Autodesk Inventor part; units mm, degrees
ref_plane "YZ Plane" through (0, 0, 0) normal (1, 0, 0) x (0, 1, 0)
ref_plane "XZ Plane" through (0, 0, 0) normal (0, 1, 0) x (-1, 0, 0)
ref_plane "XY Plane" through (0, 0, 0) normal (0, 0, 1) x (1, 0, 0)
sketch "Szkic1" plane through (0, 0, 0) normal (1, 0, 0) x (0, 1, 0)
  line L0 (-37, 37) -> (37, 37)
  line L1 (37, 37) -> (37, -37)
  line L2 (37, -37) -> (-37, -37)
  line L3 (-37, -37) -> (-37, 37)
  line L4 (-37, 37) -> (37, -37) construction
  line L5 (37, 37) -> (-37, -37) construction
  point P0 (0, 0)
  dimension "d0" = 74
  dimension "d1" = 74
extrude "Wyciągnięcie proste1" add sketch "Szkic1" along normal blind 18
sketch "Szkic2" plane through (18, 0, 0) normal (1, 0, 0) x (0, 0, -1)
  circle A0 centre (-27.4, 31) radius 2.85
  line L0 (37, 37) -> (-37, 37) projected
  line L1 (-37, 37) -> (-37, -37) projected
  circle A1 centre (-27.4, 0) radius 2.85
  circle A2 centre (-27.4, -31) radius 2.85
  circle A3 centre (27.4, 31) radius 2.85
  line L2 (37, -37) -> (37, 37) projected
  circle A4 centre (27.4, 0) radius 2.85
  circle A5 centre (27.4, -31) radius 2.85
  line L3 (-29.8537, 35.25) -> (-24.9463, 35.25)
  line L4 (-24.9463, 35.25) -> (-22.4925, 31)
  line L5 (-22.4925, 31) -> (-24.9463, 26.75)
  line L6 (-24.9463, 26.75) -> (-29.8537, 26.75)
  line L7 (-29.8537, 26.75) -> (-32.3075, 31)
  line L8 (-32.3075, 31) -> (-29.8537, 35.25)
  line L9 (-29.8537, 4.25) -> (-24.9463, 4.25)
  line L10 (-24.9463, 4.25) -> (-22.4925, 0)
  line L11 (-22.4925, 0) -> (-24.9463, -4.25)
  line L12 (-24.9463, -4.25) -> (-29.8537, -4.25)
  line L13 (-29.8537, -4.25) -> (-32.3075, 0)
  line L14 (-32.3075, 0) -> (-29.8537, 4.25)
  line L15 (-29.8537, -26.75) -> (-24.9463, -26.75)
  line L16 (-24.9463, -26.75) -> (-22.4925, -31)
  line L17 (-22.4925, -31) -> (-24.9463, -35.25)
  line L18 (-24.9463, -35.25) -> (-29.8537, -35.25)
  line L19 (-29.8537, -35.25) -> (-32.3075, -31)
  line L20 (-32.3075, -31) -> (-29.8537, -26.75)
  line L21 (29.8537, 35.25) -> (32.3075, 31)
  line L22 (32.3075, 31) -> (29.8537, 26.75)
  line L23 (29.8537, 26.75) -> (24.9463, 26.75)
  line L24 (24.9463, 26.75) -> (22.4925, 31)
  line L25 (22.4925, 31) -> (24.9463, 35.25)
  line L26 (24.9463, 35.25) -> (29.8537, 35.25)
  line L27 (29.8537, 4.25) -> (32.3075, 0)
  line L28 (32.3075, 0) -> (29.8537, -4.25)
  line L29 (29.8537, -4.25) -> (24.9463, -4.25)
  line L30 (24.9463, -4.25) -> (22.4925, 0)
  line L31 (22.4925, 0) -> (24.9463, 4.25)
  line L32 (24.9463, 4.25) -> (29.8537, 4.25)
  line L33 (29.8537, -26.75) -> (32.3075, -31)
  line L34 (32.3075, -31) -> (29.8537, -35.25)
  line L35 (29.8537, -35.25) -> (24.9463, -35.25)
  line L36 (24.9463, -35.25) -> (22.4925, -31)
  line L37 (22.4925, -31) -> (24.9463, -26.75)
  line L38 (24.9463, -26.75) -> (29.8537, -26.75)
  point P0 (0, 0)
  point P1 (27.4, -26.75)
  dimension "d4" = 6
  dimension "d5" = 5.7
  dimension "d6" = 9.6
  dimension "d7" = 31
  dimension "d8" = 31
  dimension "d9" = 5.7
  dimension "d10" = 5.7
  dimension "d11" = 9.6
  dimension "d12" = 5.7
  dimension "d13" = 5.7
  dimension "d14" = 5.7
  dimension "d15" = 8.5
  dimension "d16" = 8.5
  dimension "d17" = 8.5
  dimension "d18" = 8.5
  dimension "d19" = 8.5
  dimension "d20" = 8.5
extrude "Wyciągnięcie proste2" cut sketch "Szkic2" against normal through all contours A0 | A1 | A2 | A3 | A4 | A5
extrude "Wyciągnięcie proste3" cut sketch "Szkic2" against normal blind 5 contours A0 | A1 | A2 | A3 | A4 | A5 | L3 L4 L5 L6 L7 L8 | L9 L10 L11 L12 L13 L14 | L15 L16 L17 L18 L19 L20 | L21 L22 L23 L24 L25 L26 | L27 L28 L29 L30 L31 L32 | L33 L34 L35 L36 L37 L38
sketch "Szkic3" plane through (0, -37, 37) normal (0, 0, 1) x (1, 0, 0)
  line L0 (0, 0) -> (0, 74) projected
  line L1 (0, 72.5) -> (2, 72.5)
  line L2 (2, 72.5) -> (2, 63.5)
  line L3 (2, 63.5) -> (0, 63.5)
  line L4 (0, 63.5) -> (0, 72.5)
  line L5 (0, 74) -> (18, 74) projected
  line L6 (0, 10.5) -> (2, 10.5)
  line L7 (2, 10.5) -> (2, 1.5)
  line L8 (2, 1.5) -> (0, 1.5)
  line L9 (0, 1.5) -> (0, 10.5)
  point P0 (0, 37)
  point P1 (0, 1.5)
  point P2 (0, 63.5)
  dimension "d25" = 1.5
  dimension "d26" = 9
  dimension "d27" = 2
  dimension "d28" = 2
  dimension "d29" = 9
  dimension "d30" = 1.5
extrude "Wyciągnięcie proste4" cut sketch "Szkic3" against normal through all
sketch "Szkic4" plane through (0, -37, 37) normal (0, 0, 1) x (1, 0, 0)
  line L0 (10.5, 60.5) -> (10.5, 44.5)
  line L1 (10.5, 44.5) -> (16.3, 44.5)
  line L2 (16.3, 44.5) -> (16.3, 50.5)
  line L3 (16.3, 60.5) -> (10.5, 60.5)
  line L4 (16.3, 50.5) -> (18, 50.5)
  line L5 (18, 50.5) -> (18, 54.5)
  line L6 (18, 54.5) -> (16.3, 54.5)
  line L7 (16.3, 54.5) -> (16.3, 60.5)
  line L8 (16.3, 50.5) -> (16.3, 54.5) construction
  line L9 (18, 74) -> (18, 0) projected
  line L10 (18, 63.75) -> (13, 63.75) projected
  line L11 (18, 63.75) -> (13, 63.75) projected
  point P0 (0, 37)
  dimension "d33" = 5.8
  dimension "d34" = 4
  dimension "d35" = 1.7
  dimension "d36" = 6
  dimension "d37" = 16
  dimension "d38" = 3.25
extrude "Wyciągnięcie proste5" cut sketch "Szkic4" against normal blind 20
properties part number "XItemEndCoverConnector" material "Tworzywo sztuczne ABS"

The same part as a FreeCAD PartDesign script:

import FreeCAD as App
import Part
import Sketcher

V = App.Vector
Q = App.Units.Quantity

doc = App.newDocument("Part")
body = doc.addObject("PartDesign::Body", "Body")

# Sketch on YZ plane
sketch1 = body.newObject("Sketcher::SketchObject", "Sketch")
sketch1.AttachmentSupport = (doc.getObject("YZ_Plane"), [""])
sketch1.MapMode = "FlatFace"
sketch1.addGeometry(Part.LineSegment(V(37, 37, 0), V(-37, 37, 0)), False)
sketch1.addGeometry(Part.LineSegment(V(-37, 37, 0), V(-37, -37, 0)), False)
sketch1.addGeometry(Part.LineSegment(V(-37, -37, 0), V(37, -37, 0)), False)
sketch1.addGeometry(Part.LineSegment(V(37, -37, 0), V(37, 37, 0)), False)
sketch1.addConstraint(Sketcher.Constraint("Coincident", 0, 2, 1, 1))
sketch1.addConstraint(Sketcher.Constraint("Coincident", 1, 2, 2, 1))
sketch1.addConstraint(Sketcher.Constraint("Coincident", 2, 2, 3, 1))
sketch1.addConstraint(Sketcher.Constraint("Coincident", 3, 2, 0, 1))
sketch1.addConstraint(Sketcher.Constraint("Horizontal", 0))
sketch1.addConstraint(Sketcher.Constraint("Vertical", 1))
sketch1.addConstraint(Sketcher.Constraint("Horizontal", 2))
sketch1.addConstraint(Sketcher.Constraint("Vertical", 3))
sketch1.addConstraint(Sketcher.Constraint("Symmetric", 0, 2, 2, 2, -1, 1))
sketch1.addConstraint(Sketcher.Constraint("Equal", 2, 1))
sketch1.addConstraint(Sketcher.Constraint("DistanceX", 0, 2, 0, 1, 74.0))
pad1 = body.newObject("PartDesign::Pad", "Pad")
pad1.Profile = sketch1
pad1.Length = 18

# Sketch on YZ plane
sketch2 = body.newObject("Sketcher::SketchObject", "Sketch001")
sketch2.AttachmentSupport = (doc.getObject("YZ_Plane"), [""])
sketch2.MapMode = "FlatFace"
sketch2.AttachmentOffset = App.Placement(V(0, 0, 18), App.Rotation())
sketch2.addGeometry(Part.Circle(V(31, 27.4, 0), V(0, 0, 1), 2.9), False)
sketch2.addGeometry(Part.Circle(V(0, 27.4, 0), V(0, 0, 1), 2.9), False)
sketch2.addGeometry(Part.Circle(V(-31, 27.4, 0), V(0, 0, 1), 2.9), False)
sketch2.addGeometry(Part.Circle(V(31, -27.4, 0), V(0, 0, 1), 2.9), False)
sketch2.addGeometry(Part.Circle(V(0, -27.4, 0), V(0, 0, 1), 2.9), False)
sketch2.addGeometry(Part.Circle(V(-31, -27.4, 0), V(0, 0, 1), 2.9), False)
sketch2.addConstraint(Sketcher.Constraint("Equal", 0, 1))
sketch2.addConstraint(Sketcher.Constraint("Equal", 1, 2))
sketch2.addConstraint(Sketcher.Constraint("Equal", 2, 3))
sketch2.addConstraint(Sketcher.Constraint("Equal", 3, 4))
sketch2.addConstraint(Sketcher.Constraint("Equal", 4, 5))
sketch2.addConstraint(Sketcher.Constraint("Symmetric", 2, 3, 3, 3, -1, 1))
sketch2.addConstraint(Sketcher.Constraint("Symmetric", 1, 3, 4, 3, -1, 1))
sketch2.addConstraint(Sketcher.Constraint("Symmetric", 0, 3, 5, 3, -1, 1))
sketch2.addConstraint(Sketcher.Constraint("Symmetric", 0, 3, 2, 3, -2))
sketch2.addConstraint(Sketcher.Constraint("PointOnObject", 1, 3, -2))
sketch2.addConstraint(Sketcher.Constraint("Horizontal", 0, 3, 1, 3))
sketch2.addConstraint(Sketcher.Constraint("Diameter", 0, 5.7))
sketch2.addConstraint(Sketcher.Constraint("DistanceX", -1, 1, 0, 3, 31.0))
sketch2.addConstraint(Sketcher.Constraint("DistanceY", -1, 1, 0, 3, 27.4))
pocket1 = body.newObject("PartDesign::Pocket", "Pocket")
pocket1.Profile = sketch2
pocket1.Type = "ThroughAll"

# Sketch on YZ plane
sketch3 = body.newObject("Sketcher::SketchObject", "Sketch002")
sketch3.AttachmentSupport = (doc.getObject("YZ_Plane"), [""])
sketch3.MapMode = "FlatFace"
sketch3.AttachmentOffset = App.Placement(V(0, 0, 18), App.Rotation())
sketch3.addGeometry(Part.LineSegment(V(35.2, 24.9, 0), V(35.2, 29.9, 0)), False)
sketch3.addGeometry(Part.LineSegment(V(35.2, 29.9, 0), V(31, 32.3, 0)), False)
sketch3.addGeometry(Part.LineSegment(V(31, 32.3, 0), V(26.8, 29.9, 0)), False)
sketch3.addGeometry(Part.LineSegment(V(26.8, 29.9, 0), V(26.8, 24.9, 0)), False)
sketch3.addGeometry(Part.LineSegment(V(26.8, 24.9, 0), V(31, 22.5, 0)), False)
sketch3.addGeometry(Part.LineSegment(V(31, 22.5, 0), V(35.2, 24.9, 0)), False)
sketch3.addGeometry(Part.LineSegment(V(4.2, 24.9, 0), V(4.2, 29.9, 0)), False)
sketch3.addGeometry(Part.LineSegment(V(4.2, 29.9, 0), V(0, 32.3, 0)), False)
sketch3.addGeometry(Part.LineSegment(V(0, 32.3, 0), V(-4.2, 29.9, 0)), False)
sketch3.addGeometry(Part.LineSegment(V(-4.2, 29.9, 0), V(-4.2, 24.9, 0)), False)
sketch3.addGeometry(Part.LineSegment(V(-4.2, 24.9, 0), V(0, 22.5, 0)), False)
sketch3.addGeometry(Part.LineSegment(V(0, 22.5, 0), V(4.2, 24.9, 0)), False)
sketch3.addGeometry(Part.LineSegment(V(-26.8, 24.9, 0), V(-26.8, 29.9, 0)), False)
sketch3.addGeometry(Part.LineSegment(V(-26.8, 29.9, 0), V(-31, 32.3, 0)), False)
sketch3.addGeometry(Part.LineSegment(V(-31, 32.3, 0), V(-35.2, 29.9, 0)), False)
sketch3.addGeometry(Part.LineSegment(V(-35.2, 29.9, 0), V(-35.2, 24.9, 0)), False)
sketch3.addGeometry(Part.LineSegment(V(-35.2, 24.9, 0), V(-31, 22.5, 0)), False)
sketch3.addGeometry(Part.LineSegment(V(-31, 22.5, 0), V(-26.8, 24.9, 0)), False)
sketch3.addGeometry(Part.LineSegment(V(31, -32.3, 0), V(35.2, -29.9, 0)), False)
sketch3.addGeometry(Part.LineSegment(V(35.2, -29.9, 0), V(35.2, -24.9, 0)), False)
sketch3.addGeometry(Part.LineSegment(V(35.2, -24.9, 0), V(31, -22.5, 0)), False)
sketch3.addGeometry(Part.LineSegment(V(31, -22.5, 0), V(26.8, -24.9, 0)), False)
sketch3.addGeometry(Part.LineSegment(V(26.8, -24.9, 0), V(26.8, -29.9, 0)), False)
sketch3.addGeometry(Part.LineSegment(V(26.8, -29.9, 0), V(31, -32.3, 0)), False)
sketch3.addGeometry(Part.LineSegment(V(0, -32.3, 0), V(4.2, -29.9, 0)), False)
sketch3.addGeometry(Part.LineSegment(V(4.2, -29.9, 0), V(4.2, -24.9, 0)), False)
sketch3.addGeometry(Part.LineSegment(V(4.2, -24.9, 0), V(0, -22.5, 0)), False)
sketch3.addGeometry(Part.LineSegment(V(0, -22.5, 0), V(-4.2, -24.9, 0)), False)
sketch3.addGeometry(Part.LineSegment(V(-4.2, -24.9, 0), V(-4.2, -29.9, 0)), False)
sketch3.addGeometry(Part.LineSegment(V(-4.2, -29.9, 0), V(0, -32.3, 0)), False)
sketch3.addGeometry(Part.LineSegment(V(-31, -32.3, 0), V(-26.8, -29.9, 0)), False)
sketch3.addGeometry(Part.LineSegment(V(-26.8, -29.9, 0), V(-26.8, -24.9, 0)), False)
sketch3.addGeometry(Part.LineSegment(V(-26.8, -24.9, 0), V(-31, -22.5, 0)), False)
sketch3.addGeometry(Part.LineSegment(V(-31, -22.5, 0), V(-35.2, -24.9, 0)), False)
sketch3.addGeometry(Part.LineSegment(V(-35.2, -24.9, 0), V(-35.2, -29.9, 0)), False)
sketch3.addGeometry(Part.LineSegment(V(-35.2, -29.9, 0), V(-31, -32.3, 0)), False)
sketch3.addConstraint(Sketcher.Constraint("Coincident", 0, 2, 1, 1))
sketch3.addConstraint(Sketcher.Constraint("Coincident", 1, 2, 2, 1))
sketch3.addConstraint(Sketcher.Constraint("Coincident", 2, 2, 3, 1))
sketch3.addConstraint(Sketcher.Constraint("Coincident", 3, 2, 4, 1))
sketch3.addConstraint(Sketcher.Constraint("Coincident", 4, 2, 5, 1))
sketch3.addConstraint(Sketcher.Constraint("Coincident", 5, 2, 0, 1))
sketch3.addConstraint(Sketcher.Constraint("Coincident", 6, 2, 7, 1))
sketch3.addConstraint(Sketcher.Constraint("Coincident", 7, 2, 8, 1))
sketch3.addConstraint(Sketcher.Constraint("Coincident", 8, 2, 9, 1))
sketch3.addConstraint(Sketcher.Constraint("Coincident", 9, 2, 10, 1))
sketch3.addConstraint(Sketcher.Constraint("Coincident", 10, 2, 11, 1))
sketch3.addConstraint(Sketcher.Constraint("Coincident", 11, 2, 6, 1))
sketch3.addConstraint(Sketcher.Constraint("Coincident", 12, 2, 13, 1))
sketch3.addConstraint(Sketcher.Constraint("Coincident", 13, 2, 14, 1))
sketch3.addConstraint(Sketcher.Constraint("Coincident", 14, 2, 15, 1))
sketch3.addConstraint(Sketcher.Constraint("Coincident", 15, 2, 16, 1))
sketch3.addConstraint(Sketcher.Constraint("Coincident", 16, 2, 17, 1))
sketch3.addConstraint(Sketcher.Constraint("Coincident", 17, 2, 12, 1))
sketch3.addConstraint(Sketcher.Constraint("Coincident", 18, 2, 19, 1))
sketch3.addConstraint(Sketcher.Constraint("Coincident", 19, 2, 20, 1))
sketch3.addConstraint(Sketcher.Constraint("Coincident", 20, 2, 21, 1))
sketch3.addConstraint(Sketcher.Constraint("Coincident", 21, 2, 22, 1))
sketch3.addConstraint(Sketcher.Constraint("Coincident", 22, 2, 23, 1))
sketch3.addConstraint(Sketcher.Constraint("Coincident", 23, 2, 18, 1))
sketch3.addConstraint(Sketcher.Constraint("Coincident", 24, 2, 25, 1))
sketch3.addConstraint(Sketcher.Constraint("Coincident", 25, 2, 26, 1))
sketch3.addConstraint(Sketcher.Constraint("Coincident", 26, 2, 27, 1))
sketch3.addConstraint(Sketcher.Constraint("Coincident", 27, 2, 28, 1))
sketch3.addConstraint(Sketcher.Constraint("Coincident", 28, 2, 29, 1))
sketch3.addConstraint(Sketcher.Constraint("Coincident", 29, 2, 24, 1))
sketch3.addConstraint(Sketcher.Constraint("Coincident", 30, 2, 31, 1))
sketch3.addConstraint(Sketcher.Constraint("Coincident", 31, 2, 32, 1))
sketch3.addConstraint(Sketcher.Constraint("Coincident", 32, 2, 33, 1))
sketch3.addConstraint(Sketcher.Constraint("Coincident", 33, 2, 34, 1))
sketch3.addConstraint(Sketcher.Constraint("Coincident", 34, 2, 35, 1))
sketch3.addConstraint(Sketcher.Constraint("Coincident", 35, 2, 30, 1))
sketch3.addConstraint(Sketcher.Constraint("Vertical", 0))
sketch3.addConstraint(Sketcher.Constraint("Vertical", 3))
sketch3.addConstraint(Sketcher.Constraint("Vertical", 6))
sketch3.addConstraint(Sketcher.Constraint("Vertical", 9))
sketch3.addConstraint(Sketcher.Constraint("Vertical", 12))
sketch3.addConstraint(Sketcher.Constraint("Vertical", 15))
sketch3.addConstraint(Sketcher.Constraint("Vertical", 19))
sketch3.addConstraint(Sketcher.Constraint("Vertical", 22))
sketch3.addConstraint(Sketcher.Constraint("Vertical", 25))
sketch3.addConstraint(Sketcher.Constraint("Vertical", 28))
sketch3.addConstraint(Sketcher.Constraint("Vertical", 31))
sketch3.addConstraint(Sketcher.Constraint("Vertical", 34))
sketch3.addConstraint(Sketcher.Constraint("Symmetric", 14, 2, 18, 2, -1, 1))
sketch3.addConstraint(Sketcher.Constraint("Symmetric", 16, 2, 20, 2, -1, 1))
sketch3.addConstraint(Sketcher.Constraint("Symmetric", 17, 2, 21, 2, -1, 1))
sketch3.addConstraint(Sketcher.Constraint("Symmetric", 13, 2, 23, 2, -1, 1))
sketch3.addConstraint(Sketcher.Constraint("Symmetric", 8, 2, 24, 2, -1, 1))
sketch3.addConstraint(Sketcher.Constraint("Symmetric", 10, 2, 26, 2, -1, 1))
sketch3.addConstraint(Sketcher.Constraint("Symmetric", 11, 2, 27, 2, -1, 1))
sketch3.addConstraint(Sketcher.Constraint("Symmetric", 7, 2, 29, 2, -1, 1))
sketch3.addConstraint(Sketcher.Constraint("Symmetric", 2, 2, 30, 2, -1, 1))
sketch3.addConstraint(Sketcher.Constraint("Symmetric", 4, 2, 32, 2, -1, 1))
sketch3.addConstraint(Sketcher.Constraint("Symmetric", 5, 2, 33, 2, -1, 1))
sketch3.addConstraint(Sketcher.Constraint("Symmetric", 1, 2, 35, 2, -1, 1))
sketch3.addConstraint(Sketcher.Constraint("Symmetric", 6, 2, 8, 2, -2))
sketch3.addConstraint(Sketcher.Constraint("Symmetric", 2, 2, 12, 2, -2))
sketch3.addConstraint(Sketcher.Constraint("Symmetric", 1, 2, 13, 2, -2))
sketch3.addConstraint(Sketcher.Constraint("Symmetric", 0, 2, 14, 2, -2))
sketch3.addConstraint(Sketcher.Constraint("Symmetric", 4, 2, 16, 2, -2))
sketch3.addConstraint(Sketcher.Constraint("PointOnObject", 7, 2, -2))
sketch3.addConstraint(Sketcher.Constraint("PointOnObject", 10, 2, -2))
sketch3.addConstraint(Sketcher.Constraint("Parallel", 1, 4))
sketch3.addConstraint(Sketcher.Constraint("Parallel", 2, 5))
sketch3.addConstraint(Sketcher.Constraint("Parallel", 4, 7))
sketch3.addConstraint(Sketcher.Constraint("Parallel", 5, 8))
sketch3.addConstraint(Sketcher.Constraint("Parallel", 7, 10))
sketch3.addConstraint(Sketcher.Constraint("Parallel", 8, 11))
sketch3.addConstraint(Sketcher.Constraint("Parallel", 13, 16))
sketch3.addConstraint(Sketcher.Constraint("Parallel", 14, 17))
sketch3.addConstraint(Sketcher.Constraint("Parallel", 16, 20))
sketch3.addConstraint(Sketcher.Constraint("Parallel", 20, 23))
sketch3.addConstraint(Sketcher.Constraint("Parallel", 23, 26))
sketch3.addConstraint(Sketcher.Constraint("Parallel", 26, 29))
sketch3.addConstraint(Sketcher.Constraint("Parallel", 29, 32))
sketch3.addConstraint(Sketcher.Constraint("Parallel", 32, 35))
sketch3.addConstraint(Sketcher.Constraint("Horizontal", 0, 2, 2, 2))
sketch3.addConstraint(Sketcher.Constraint("Horizontal", 3, 2, 5, 2))
sketch3.addConstraint(Sketcher.Constraint("Horizontal", 2, 2, 6, 2))
sketch3.addConstraint(Sketcher.Constraint("Horizontal", 1, 2, 7, 2))
sketch3.addConstraint(Sketcher.Constraint("Horizontal", 5, 2, 9, 2))
sketch3.addConstraint(Sketcher.Constraint("DistanceX", -1, 1, 1, 2, 31.0))
sketch3.addConstraint(Sketcher.Constraint("DistanceX", 2, 2, 0, 2, 8.5))
sketch3.addConstraint(Sketcher.Constraint("Angle", 1, Q("149.9994 deg")))
sketch3.addConstraint(Sketcher.Constraint("DistanceY", 18, 2, 5, 2, 54.8))
sketch3.addConstraint(Sketcher.Constraint("DistanceY", 0, 1, 0, 2, 4.9074))
pocket2 = body.newObject("PartDesign::Pocket", "Pocket001")
pocket2.Profile = sketch3
pocket2.Length = 5

# Sketch on XY plane
sketch4 = body.newObject("Sketcher::SketchObject", "Sketch003")
sketch4.AttachmentSupport = (doc.getObject("XY_Plane"), [""])
sketch4.MapMode = "FlatFace"
sketch4.AttachmentOffset = App.Placement(V(0, 0, 37), App.Rotation())
sketch4.addGeometry(Part.LineSegment(V(0, 35.5, 0), V(0, 26.5, 0)), False)
sketch4.addGeometry(Part.LineSegment(V(0, 26.5, 0), V(2, 26.5, 0)), False)
sketch4.addGeometry(Part.LineSegment(V(2, 26.5, 0), V(2, 35.5, 0)), False)
sketch4.addGeometry(Part.LineSegment(V(2, 35.5, 0), V(0, 35.5, 0)), False)
sketch4.addGeometry(Part.LineSegment(V(0, -26.5, 0), V(0, -35.5, 0)), False)
sketch4.addGeometry(Part.LineSegment(V(0, -35.5, 0), V(2, -35.5, 0)), False)
sketch4.addGeometry(Part.LineSegment(V(2, -35.5, 0), V(2, -26.5, 0)), False)
sketch4.addGeometry(Part.LineSegment(V(2, -26.5, 0), V(0, -26.5, 0)), False)
sketch4.addConstraint(Sketcher.Constraint("Coincident", 0, 2, 1, 1))
sketch4.addConstraint(Sketcher.Constraint("Coincident", 1, 2, 2, 1))
sketch4.addConstraint(Sketcher.Constraint("Coincident", 2, 2, 3, 1))
sketch4.addConstraint(Sketcher.Constraint("Coincident", 3, 2, 0, 1))
sketch4.addConstraint(Sketcher.Constraint("Coincident", 4, 2, 5, 1))
sketch4.addConstraint(Sketcher.Constraint("Coincident", 5, 2, 6, 1))
sketch4.addConstraint(Sketcher.Constraint("Coincident", 6, 2, 7, 1))
sketch4.addConstraint(Sketcher.Constraint("Coincident", 7, 2, 4, 1))
sketch4.addConstraint(Sketcher.Constraint("Vertical", 0))
sketch4.addConstraint(Sketcher.Constraint("Horizontal", 1))
sketch4.addConstraint(Sketcher.Constraint("Vertical", 2))
sketch4.addConstraint(Sketcher.Constraint("Horizontal", 3))
sketch4.addConstraint(Sketcher.Constraint("Vertical", 4))
sketch4.addConstraint(Sketcher.Constraint("Horizontal", 5))
sketch4.addConstraint(Sketcher.Constraint("Vertical", 6))
sketch4.addConstraint(Sketcher.Constraint("Horizontal", 7))
sketch4.addConstraint(Sketcher.Constraint("Symmetric", 3, 2, 4, 2, -1, 1))
sketch4.addConstraint(Sketcher.Constraint("Symmetric", 1, 2, 6, 2, -1))
sketch4.addConstraint(Sketcher.Constraint("PointOnObject", 0, 2, -2))
sketch4.addConstraint(Sketcher.Constraint("DistanceX", 1, 1, 1, 2, 2.0))
sketch4.addConstraint(Sketcher.Constraint("DistanceY", 0, 2, 0, 1, 9.0))
sketch4.addConstraint(Sketcher.Constraint("DistanceY", 4, 2, 0, 2, 62.0))
pocket3 = body.newObject("PartDesign::Pocket", "Pocket002")
pocket3.Profile = sketch4
pocket3.Type = "ThroughAll"

# Sketch on XY plane
sketch5 = body.newObject("Sketcher::SketchObject", "Sketch004")
sketch5.AttachmentSupport = (doc.getObject("XY_Plane"), [""])
sketch5.MapMode = "FlatFace"
sketch5.AttachmentOffset = App.Placement(V(0, 0, 37), App.Rotation())
sketch5.addGeometry(Part.LineSegment(V(16.3, 23.5, 0), V(10.5, 23.5, 0)), False)
sketch5.addGeometry(Part.LineSegment(V(10.5, 23.5, 0), V(10.5, 7.5, 0)), False)
sketch5.addGeometry(Part.LineSegment(V(10.5, 7.5, 0), V(16.3, 7.5, 0)), False)
sketch5.addGeometry(Part.LineSegment(V(16.3, 7.5, 0), V(16.3, 13.5, 0)), False)
sketch5.addGeometry(Part.LineSegment(V(16.3, 13.5, 0), V(18, 13.5, 0)), False)
sketch5.addGeometry(Part.LineSegment(V(18, 13.5, 0), V(18, 17.5, 0)), False)
sketch5.addGeometry(Part.LineSegment(V(18, 17.5, 0), V(16.3, 17.5, 0)), False)
sketch5.addGeometry(Part.LineSegment(V(16.3, 17.5, 0), V(16.3, 23.5, 0)), False)
sketch5.addConstraint(Sketcher.Constraint("Coincident", 0, 2, 1, 1))
sketch5.addConstraint(Sketcher.Constraint("Coincident", 1, 2, 2, 1))
sketch5.addConstraint(Sketcher.Constraint("Coincident", 2, 2, 3, 1))
sketch5.addConstraint(Sketcher.Constraint("Coincident", 3, 2, 4, 1))
sketch5.addConstraint(Sketcher.Constraint("Coincident", 4, 2, 5, 1))
sketch5.addConstraint(Sketcher.Constraint("Coincident", 5, 2, 6, 1))
sketch5.addConstraint(Sketcher.Constraint("Coincident", 6, 2, 7, 1))
sketch5.addConstraint(Sketcher.Constraint("Coincident", 7, 2, 0, 1))
sketch5.addConstraint(Sketcher.Constraint("Horizontal", 0))
sketch5.addConstraint(Sketcher.Constraint("Vertical", 1))
sketch5.addConstraint(Sketcher.Constraint("Horizontal", 2))
sketch5.addConstraint(Sketcher.Constraint("Vertical", 3))
sketch5.addConstraint(Sketcher.Constraint("Horizontal", 4))
sketch5.addConstraint(Sketcher.Constraint("Vertical", 5))
sketch5.addConstraint(Sketcher.Constraint("Horizontal", 6))
sketch5.addConstraint(Sketcher.Constraint("Vertical", 7))
sketch5.addConstraint(Sketcher.Constraint("Vertical", 3, 2, 6, 2))
sketch5.addConstraint(Sketcher.Constraint("Equal", 3, 7))
sketch5.addConstraint(Sketcher.Constraint("DistanceY", 1, 2, 1, 1, 16.0))
sketch5.addConstraint(Sketcher.Constraint("DistanceY", 3, 1, 3, 2, 6.0))
sketch5.addConstraint(Sketcher.Constraint("DistanceX", 0, 2, 0, 1, 5.8))
sketch5.addConstraint(Sketcher.Constraint("DistanceX", 4, 1, 4, 2, 1.7))
sketch5.addConstraint(Sketcher.Constraint("DistanceX", -1, 1, 4, 2, 18.0))
sketch5.addConstraint(Sketcher.Constraint("DistanceY", -1, 1, 0, 2, 23.5))
pocket4 = body.newObject("PartDesign::Pocket", "Pocket003")
pocket4.Profile = sketch5
pocket4.Length = 20

doc.recompute()
